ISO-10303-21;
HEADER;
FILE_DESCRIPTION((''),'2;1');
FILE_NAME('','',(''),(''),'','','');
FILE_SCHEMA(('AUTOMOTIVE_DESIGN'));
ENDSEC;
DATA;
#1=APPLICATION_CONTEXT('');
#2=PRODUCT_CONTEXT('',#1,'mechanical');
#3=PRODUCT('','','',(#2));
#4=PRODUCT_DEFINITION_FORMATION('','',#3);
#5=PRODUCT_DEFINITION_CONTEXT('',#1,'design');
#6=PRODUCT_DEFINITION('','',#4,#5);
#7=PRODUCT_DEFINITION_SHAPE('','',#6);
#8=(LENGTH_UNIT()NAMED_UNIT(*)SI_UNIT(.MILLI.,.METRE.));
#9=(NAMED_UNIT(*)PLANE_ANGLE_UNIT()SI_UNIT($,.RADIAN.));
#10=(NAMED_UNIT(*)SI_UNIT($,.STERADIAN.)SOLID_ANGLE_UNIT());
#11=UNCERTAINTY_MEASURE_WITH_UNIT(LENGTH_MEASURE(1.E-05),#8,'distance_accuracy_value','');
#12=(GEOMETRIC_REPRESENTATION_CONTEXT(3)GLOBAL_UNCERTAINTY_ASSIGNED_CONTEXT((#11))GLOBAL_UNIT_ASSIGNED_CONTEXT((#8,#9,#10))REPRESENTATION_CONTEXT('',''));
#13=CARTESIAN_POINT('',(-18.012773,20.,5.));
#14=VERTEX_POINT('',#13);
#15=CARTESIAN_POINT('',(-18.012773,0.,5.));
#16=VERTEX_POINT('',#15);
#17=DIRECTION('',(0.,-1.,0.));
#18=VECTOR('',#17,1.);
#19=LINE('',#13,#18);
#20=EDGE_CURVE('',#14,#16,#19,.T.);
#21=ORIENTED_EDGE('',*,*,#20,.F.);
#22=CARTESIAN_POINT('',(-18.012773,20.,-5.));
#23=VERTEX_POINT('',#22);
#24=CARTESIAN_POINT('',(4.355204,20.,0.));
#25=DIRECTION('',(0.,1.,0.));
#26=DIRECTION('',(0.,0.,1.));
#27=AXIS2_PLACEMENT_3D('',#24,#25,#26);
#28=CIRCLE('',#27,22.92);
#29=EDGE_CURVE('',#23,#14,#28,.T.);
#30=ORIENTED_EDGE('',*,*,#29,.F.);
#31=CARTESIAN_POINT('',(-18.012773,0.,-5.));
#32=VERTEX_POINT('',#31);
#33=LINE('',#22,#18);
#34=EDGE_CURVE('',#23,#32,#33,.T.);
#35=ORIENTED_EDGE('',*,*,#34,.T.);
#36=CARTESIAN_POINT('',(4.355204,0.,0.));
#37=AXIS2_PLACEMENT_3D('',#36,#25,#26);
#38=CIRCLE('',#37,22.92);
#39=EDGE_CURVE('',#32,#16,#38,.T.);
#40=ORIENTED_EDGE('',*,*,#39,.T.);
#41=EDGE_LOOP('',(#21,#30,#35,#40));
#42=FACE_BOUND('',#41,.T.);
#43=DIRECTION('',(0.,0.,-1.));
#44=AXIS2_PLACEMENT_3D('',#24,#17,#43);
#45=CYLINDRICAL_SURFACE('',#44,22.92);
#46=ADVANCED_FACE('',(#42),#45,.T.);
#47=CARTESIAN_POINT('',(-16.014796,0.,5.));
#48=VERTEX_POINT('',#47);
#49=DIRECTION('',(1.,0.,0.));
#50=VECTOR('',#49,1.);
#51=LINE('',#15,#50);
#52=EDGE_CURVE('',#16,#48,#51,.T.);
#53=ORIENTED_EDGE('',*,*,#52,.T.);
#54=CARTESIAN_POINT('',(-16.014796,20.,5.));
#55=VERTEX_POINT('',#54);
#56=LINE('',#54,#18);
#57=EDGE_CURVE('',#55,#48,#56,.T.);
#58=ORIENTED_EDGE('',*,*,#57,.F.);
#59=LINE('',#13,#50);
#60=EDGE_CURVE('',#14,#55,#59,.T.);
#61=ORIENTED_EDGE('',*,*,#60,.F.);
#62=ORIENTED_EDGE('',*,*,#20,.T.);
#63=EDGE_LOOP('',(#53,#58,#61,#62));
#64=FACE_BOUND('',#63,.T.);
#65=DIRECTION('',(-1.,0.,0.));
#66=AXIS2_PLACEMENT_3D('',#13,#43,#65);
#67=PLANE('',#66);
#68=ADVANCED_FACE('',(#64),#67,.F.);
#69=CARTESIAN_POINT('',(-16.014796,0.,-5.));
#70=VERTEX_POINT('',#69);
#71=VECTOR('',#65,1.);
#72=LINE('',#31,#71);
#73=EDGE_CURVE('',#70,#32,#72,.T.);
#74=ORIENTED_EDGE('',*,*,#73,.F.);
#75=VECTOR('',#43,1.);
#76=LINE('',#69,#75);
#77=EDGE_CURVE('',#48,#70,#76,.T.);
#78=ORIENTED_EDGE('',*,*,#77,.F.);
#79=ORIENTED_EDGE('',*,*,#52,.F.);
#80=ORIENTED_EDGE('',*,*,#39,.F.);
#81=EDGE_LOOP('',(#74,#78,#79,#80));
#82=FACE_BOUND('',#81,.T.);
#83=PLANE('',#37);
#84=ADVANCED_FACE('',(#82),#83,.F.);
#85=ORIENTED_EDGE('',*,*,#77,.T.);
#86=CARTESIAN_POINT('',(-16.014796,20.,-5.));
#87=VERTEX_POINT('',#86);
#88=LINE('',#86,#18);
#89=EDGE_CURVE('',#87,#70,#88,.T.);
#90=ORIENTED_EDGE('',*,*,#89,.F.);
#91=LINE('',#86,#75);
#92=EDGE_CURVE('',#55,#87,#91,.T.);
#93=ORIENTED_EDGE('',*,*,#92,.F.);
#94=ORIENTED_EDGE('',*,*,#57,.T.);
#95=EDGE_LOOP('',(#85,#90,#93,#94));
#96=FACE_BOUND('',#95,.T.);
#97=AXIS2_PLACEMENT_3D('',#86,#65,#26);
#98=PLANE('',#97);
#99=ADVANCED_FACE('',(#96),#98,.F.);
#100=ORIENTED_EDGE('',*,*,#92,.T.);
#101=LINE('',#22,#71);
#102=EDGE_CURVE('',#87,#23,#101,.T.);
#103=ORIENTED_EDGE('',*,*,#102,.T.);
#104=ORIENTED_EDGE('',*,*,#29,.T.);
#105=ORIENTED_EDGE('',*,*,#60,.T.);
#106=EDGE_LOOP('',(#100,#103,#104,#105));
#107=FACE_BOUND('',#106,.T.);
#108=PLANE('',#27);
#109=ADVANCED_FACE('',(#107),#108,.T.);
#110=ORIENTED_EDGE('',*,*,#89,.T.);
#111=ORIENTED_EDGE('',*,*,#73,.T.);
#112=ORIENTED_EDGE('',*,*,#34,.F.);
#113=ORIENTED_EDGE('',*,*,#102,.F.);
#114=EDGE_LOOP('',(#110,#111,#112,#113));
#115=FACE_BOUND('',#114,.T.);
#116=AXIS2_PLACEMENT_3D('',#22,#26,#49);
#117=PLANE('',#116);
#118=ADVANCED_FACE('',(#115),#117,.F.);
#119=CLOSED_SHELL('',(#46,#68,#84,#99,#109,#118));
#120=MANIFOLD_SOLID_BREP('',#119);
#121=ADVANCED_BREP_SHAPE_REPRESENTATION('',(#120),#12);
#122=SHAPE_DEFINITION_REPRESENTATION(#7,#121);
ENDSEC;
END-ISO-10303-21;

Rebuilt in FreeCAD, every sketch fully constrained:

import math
import FreeCAD as App
import Part
import Sketcher
Q = App.Units.Quantity

doc = App.newDocument("Part")
params = doc.addObject("Spreadsheet::Sheet", "Params")
for row, (alias, value) in enumerate([
    ("sketch1_height", "10 mm"),
    ("sketch1_radius", "22.92 mm"),
    ("pad1_length", "20 mm"),
], start=1):
    params.set(f"A{row}", alias)
    params.set(f"B{row}", "=" + value)
    params.setAlias(f"B{row}", alias)

body = doc.addObject("PartDesign::Body", "Body")

# Sketch on XZ plane
sketch1 = doc.addObject("Sketcher::SketchObject", "Sketch")
body.addObject(sketch1)
sketch1.AttachmentSupport = (doc.XZ_Plane, [""])
sketch1.MapMode = "FlatFace"
sketch1.addGeometry([
    Part.LineSegment(App.Vector(-16, -5, 0), App.Vector(-18, -5, 0)),
    Part.ArcOfCircle(Part.Circle(App.Vector(4.4, 0, 0), App.Vector(0, 0, 1), 22.9), math.radians(167), math.radians(193)),
    Part.LineSegment(App.Vector(-18, 5, 0), App.Vector(-16, 5, 0)),
    Part.LineSegment(App.Vector(-16, 5, 0), App.Vector(-16, -5, 0)),
], False)
sketch1.addConstraint([
    Sketcher.Constraint("Coincident", 0, 2, 1, 2),
    Sketcher.Constraint("Coincident", 1, 1, 2, 1),
    Sketcher.Constraint("Coincident", 2, 2, 3, 1),
    Sketcher.Constraint("Coincident", 3, 2, 0, 1),
    Sketcher.Constraint("Horizontal", 0),
    Sketcher.Constraint("Horizontal", 2),
    Sketcher.Constraint("Vertical", 3),
    Sketcher.Constraint("Symmetric", 0, 2, 1, 1, -1),
    Sketcher.Constraint("DistanceY", 3, 2, 3, 1, Q("10 mm")),
    Sketcher.Constraint("Radius", 1, Q("22.92 mm")),
    Sketcher.Constraint("DistanceX", 2, 2, 1, 3, Q("20.37 mm")),
    Sketcher.Constraint("DistanceX", -1, 1, 1, 3, Q("4.355204 mm")),
])
sketch1.setExpression("Constraints[8]", "Params.sketch1_height")
sketch1.setExpression("Constraints[9]", "Params.sketch1_radius")
pad1 = doc.addObject("PartDesign::Pad", "Pad")
body.addObject(pad1)
pad1.Profile = sketch1
pad1.setExpression("Length", "Params.pad1_length")
pad1.Reversed = True

doc.recompute()
